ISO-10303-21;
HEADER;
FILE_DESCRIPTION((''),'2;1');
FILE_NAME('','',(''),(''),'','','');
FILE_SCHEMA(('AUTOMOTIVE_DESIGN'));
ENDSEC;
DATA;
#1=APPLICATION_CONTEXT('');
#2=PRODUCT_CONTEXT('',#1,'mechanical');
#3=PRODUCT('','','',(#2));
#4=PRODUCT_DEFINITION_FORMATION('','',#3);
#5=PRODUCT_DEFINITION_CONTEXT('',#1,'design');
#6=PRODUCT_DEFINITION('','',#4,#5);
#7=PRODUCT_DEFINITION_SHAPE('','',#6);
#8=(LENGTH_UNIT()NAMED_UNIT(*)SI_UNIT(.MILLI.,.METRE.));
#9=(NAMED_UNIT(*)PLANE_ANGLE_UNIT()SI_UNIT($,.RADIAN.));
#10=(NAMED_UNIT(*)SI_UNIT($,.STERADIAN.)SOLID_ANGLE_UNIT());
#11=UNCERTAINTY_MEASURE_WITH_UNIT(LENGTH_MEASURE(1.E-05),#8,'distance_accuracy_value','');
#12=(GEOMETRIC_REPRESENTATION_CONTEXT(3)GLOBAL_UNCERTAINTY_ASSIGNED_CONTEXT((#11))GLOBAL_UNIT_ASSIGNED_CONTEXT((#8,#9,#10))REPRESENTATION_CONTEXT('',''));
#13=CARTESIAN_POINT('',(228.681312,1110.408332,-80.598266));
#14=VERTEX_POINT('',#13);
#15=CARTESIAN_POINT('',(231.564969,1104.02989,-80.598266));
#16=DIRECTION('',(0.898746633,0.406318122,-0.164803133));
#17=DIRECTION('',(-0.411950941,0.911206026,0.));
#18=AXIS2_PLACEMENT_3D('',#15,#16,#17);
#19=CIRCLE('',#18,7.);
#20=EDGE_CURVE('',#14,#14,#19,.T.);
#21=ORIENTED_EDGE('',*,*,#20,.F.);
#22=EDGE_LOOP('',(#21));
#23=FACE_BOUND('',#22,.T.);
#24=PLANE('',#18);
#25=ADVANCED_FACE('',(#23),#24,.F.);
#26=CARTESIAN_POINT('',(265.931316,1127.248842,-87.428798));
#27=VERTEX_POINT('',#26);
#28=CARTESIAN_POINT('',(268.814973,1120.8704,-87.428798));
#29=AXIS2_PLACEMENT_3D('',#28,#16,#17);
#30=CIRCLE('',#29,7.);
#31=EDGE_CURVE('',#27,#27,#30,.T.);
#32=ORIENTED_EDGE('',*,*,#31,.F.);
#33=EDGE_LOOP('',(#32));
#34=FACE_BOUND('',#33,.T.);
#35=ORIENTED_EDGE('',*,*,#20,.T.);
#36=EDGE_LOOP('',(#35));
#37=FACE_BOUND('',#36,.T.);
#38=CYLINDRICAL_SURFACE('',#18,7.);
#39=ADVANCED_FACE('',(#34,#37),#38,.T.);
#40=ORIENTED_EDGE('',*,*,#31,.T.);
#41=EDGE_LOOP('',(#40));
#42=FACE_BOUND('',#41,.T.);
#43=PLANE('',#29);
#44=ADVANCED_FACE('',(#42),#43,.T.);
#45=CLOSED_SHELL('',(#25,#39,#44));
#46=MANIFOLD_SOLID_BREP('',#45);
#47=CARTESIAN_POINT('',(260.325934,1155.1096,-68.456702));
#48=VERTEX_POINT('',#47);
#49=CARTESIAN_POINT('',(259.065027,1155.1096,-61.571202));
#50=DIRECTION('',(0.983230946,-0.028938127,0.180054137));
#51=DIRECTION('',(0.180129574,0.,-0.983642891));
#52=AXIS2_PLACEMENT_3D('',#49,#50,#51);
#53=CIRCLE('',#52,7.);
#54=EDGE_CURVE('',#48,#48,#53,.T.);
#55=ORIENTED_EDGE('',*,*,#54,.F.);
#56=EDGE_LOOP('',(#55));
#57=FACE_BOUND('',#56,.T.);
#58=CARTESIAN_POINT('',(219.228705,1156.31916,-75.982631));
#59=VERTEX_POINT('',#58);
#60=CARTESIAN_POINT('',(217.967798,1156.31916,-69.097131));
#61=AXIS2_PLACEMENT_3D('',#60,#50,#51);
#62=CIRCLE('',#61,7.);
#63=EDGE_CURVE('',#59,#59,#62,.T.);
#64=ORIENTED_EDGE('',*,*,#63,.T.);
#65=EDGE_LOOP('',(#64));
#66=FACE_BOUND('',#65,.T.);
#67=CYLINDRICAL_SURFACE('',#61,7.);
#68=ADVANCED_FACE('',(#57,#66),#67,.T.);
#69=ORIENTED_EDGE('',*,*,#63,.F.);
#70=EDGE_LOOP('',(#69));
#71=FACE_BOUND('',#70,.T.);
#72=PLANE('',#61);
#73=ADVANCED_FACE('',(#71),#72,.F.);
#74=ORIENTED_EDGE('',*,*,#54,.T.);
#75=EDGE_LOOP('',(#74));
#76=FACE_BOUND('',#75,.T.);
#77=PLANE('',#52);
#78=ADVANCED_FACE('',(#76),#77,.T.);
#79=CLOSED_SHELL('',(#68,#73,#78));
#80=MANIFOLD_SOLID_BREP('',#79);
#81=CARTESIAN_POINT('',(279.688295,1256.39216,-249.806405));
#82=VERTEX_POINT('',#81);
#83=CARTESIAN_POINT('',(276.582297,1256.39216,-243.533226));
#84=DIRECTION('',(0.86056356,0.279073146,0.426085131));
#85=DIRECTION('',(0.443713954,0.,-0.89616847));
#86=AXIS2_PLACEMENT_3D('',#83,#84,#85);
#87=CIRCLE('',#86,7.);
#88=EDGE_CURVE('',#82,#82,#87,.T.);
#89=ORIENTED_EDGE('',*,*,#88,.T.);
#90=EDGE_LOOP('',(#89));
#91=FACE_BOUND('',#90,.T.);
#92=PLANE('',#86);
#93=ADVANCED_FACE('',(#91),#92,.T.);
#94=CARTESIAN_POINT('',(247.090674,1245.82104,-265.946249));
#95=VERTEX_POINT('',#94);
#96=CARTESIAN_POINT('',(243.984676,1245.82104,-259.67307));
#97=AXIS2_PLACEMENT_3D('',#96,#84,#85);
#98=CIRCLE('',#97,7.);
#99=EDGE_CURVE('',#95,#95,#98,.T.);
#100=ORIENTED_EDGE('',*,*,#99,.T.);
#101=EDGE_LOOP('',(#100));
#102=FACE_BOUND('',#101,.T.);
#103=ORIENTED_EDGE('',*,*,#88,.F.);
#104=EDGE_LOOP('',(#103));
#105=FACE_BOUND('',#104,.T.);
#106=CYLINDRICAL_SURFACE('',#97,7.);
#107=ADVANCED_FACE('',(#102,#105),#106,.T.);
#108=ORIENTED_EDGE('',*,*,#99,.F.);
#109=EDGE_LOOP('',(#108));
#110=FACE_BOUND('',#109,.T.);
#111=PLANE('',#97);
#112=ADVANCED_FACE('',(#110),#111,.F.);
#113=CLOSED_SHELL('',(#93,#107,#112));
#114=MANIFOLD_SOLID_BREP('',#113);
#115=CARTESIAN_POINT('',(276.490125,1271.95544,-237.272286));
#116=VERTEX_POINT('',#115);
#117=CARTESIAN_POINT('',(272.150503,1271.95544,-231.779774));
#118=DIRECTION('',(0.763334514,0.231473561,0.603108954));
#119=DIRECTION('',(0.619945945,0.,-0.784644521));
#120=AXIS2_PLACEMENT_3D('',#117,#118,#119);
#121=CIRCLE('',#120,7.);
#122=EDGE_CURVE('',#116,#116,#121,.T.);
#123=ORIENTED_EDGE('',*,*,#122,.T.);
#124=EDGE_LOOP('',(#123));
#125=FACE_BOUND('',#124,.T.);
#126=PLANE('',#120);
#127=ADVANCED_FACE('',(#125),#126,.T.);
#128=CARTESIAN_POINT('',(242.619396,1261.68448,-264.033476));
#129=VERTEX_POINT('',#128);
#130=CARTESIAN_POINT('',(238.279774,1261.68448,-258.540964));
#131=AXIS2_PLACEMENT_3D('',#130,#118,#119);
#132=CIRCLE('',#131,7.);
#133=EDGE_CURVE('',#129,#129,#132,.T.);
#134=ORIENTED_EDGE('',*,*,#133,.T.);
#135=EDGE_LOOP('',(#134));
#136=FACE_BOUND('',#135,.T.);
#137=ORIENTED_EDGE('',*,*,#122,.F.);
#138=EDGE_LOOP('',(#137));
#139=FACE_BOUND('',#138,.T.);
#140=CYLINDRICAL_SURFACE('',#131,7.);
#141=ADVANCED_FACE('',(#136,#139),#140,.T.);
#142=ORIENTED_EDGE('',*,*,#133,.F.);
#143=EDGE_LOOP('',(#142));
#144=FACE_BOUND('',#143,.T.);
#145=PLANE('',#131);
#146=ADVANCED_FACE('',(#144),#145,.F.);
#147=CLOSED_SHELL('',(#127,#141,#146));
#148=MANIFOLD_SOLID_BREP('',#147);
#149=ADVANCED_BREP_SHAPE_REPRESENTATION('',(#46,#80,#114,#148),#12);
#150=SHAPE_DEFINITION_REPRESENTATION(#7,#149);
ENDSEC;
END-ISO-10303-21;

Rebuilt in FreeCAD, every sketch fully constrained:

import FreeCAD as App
import Part
import Sketcher

doc = App.newDocument("Part")
body = doc.addObject("PartDesign::Body", "Body")

sketch1 = doc.addObject("Sketcher::SketchObject", "Sketch")
body.addObject(sketch1)
sketch1.Placement = App.Placement(App.Vector(217.967798, 1156.31916, -69.097131), App.Rotation(App.Vector(-0.180129574, 0, 0.983642891), App.Vector(-0.028464783, -0.999581205, -0.005212612), App.Vector(0.983230946, -0.028938127, 0.180054137), "ZXY"))
sketch1.addGeometry(Part.Circle(App.Vector(0, 0, 0), App.Vector(0, 0, 1), 7), False)
sketch1.addConstraint([
    Sketcher.Constraint("Coincident", 0, 3, -1, 1),
    Sketcher.Constraint("Diameter", 0, 14.0),
])

sketch2 = doc.addObject("Sketcher::SketchObject", "Sketch001")
body.addObject(sketch2)
sketch2.Placement = App.Placement(App.Vector(19.315177, 0, -105.475386), App.Rotation(App.Vector(0.983642891, 0, 0.180129574), App.Vector(0, 1, 0), App.Vector(-0.180129574, 0, 0.983642891), "ZXY"))
sketch2.addGeometry(Part.LineSegment(App.Vector(202, 1156, 0), App.Vector(244, 1155, 0)), False)
sketch2.addConstraint([
    Sketcher.Constraint("DistanceY", -1, 1, 0, 2, 1155.109601),
    Sketcher.Constraint("DistanceX", -1, 1, 0, 1, 201.956038),
    Sketcher.Constraint("DistanceY", -1, 1, 0, 1, 1156.319161),
    Sketcher.Constraint("DistanceX", 0, 1, 0, 2, 41.78064),
])
doc.recompute()

additivepipe = doc.addObject("PartDesign::AdditivePipe", "AdditivePipe")
body.addObject(additivepipe)
additivepipe.Profile = sketch1
additivepipe.Spine = (sketch2, ["Edge1"])
body2 = doc.addObject("PartDesign::Body", "Body001")

sketch3 = doc.addObject("Sketcher::SketchObject", "Sketch002")
body2.addObject(sketch3)
sketch3.Placement = App.Placement(App.Vector(231.564969, 1104.02989, -80.598266), App.Rotation(App.Vector(-0.411950941, 0.911206026, 0), App.Vector(0.150169608, 0.067890806, 0.986326481), App.Vector(0.898746633, 0.406318122, -0.164803133), "ZXY"))
sketch3.addGeometry(Part.Circle(App.Vector(0, 0, 0), App.Vector(0, 0, 1), 7), False)
sketch3.addConstraint([
    Sketcher.Constraint("Coincident", 0, 3, -1, 1),
    Sketcher.Constraint("Diameter", 0, 14.0),
])

sketch4 = doc.addObject("Sketcher::SketchObject", "Sketch003")
body2.addObject(sketch4)
sketch4.Placement = App.Placement(App.Vector(-375.124703, 829.749021, 0), App.Rotation(App.Vector(0.911206026, 0.411950941, 0), App.Vector(0, 0, 1), App.Vector(0.411950941, -0.911206026, 0), "ZXY"))
sketch4.addGeometry(Part.LineSegment(App.Vector(666, -81, 0), App.Vector(707, -87, 0)), False)
sketch4.addConstraint([
    Sketcher.Constraint("DistanceY", 0, 2, -1, 1, 87.428798),
    Sketcher.Constraint("DistanceX", -1, 1, 0, 2, 706.689439),
    Sketcher.Constraint("DistanceY", 0, 2, 0, 1, 6.830532),
    Sketcher.Constraint("Distance", 0, 41.446613),
])
doc.recompute()

additivepipe2 = doc.addObject("PartDesign::AdditivePipe", "AdditivePipe001")
body2.addObject(additivepipe2)
additivepipe2.Profile = sketch3
additivepipe2.Spine = (sketch4, ["Edge1"])
body3 = doc.addObject("PartDesign::Body", "Body002")

sketch5 = doc.addObject("Sketcher::SketchObject", "Sketch004")
body3.addObject(sketch5)
sketch5.Placement = App.Placement(App.Vector(238.279774, 1261.68448, -258.540964), App.Rotation(App.Vector(-0.619945945, 0, 0.784644521), App.Vector(0.181624461, -0.972841195, 0.143501096), App.Vector(0.763334514, 0.231473561, 0.603108954), "ZXY"))
sketch5.addGeometry(Part.Circle(App.Vector(0, 0, 0), App.Vector(0, 0, 1), 7), False)
sketch5.addConstraint([
    Sketcher.Constraint("Coincident", 0, 3, -1, 1),
    Sketcher.Constraint("Diameter", 0, 14.0),
])

sketch6 = doc.addObject("Sketcher::SketchObject", "Sketch005")
body3.addObject(sketch6)
sketch6.Placement = App.Placement(App.Vector(217.342714, 0, -275.08329), App.Rotation(App.Vector(0.784644521, 0, 0.619945945), App.Vector(0, 0.999999999, 0), App.Vector(-0.619945945, 0, 0.784644521), "ZXY"))
sketch6.addGeometry(Part.LineSegment(App.Vector(27, 1262, 0), App.Vector(70, 1272, 0)), False)
sketch6.addConstraint([
    Sketcher.Constraint("DistanceX", -1, 1, 0, 2, 69.85047),
    Sketcher.Constraint("DistanceY", 0, 1, 0, 2, 10.27096),
    Sketcher.Constraint("Distance", 0, 44.372065),
    Sketcher.Constraint("DistanceY", -1, 1, 0, 1, 1261.684478),
])
doc.recompute()

additivepipe3 = doc.addObject("PartDesign::AdditivePipe", "AdditivePipe002")
body3.addObject(additivepipe3)
additivepipe3.Profile = sketch5
additivepipe3.Spine = (sketch6, ["Edge1"])
body4 = doc.addObject("PartDesign::Body", "Body003")

sketch7 = doc.addObject("Sketcher::SketchObject", "Sketch006")
body4.addObject(sketch7)
sketch7.Placement = App.Placement(App.Vector(243.984676, 1245.82104, -259.67307), App.Rotation(App.Vector(-0.443713954, 0, 0.89616847), App.Vector(0.250096554, -0.960269847, 0.123828649), App.Vector(0.86056356, 0.279073146, 0.426085131), "ZXY"))
sketch7.addGeometry(Part.Circle(App.Vector(0, 0, 0), App.Vector(0, 0, 1), 7), False)
sketch7.addConstraint([
    Sketcher.Constraint("Coincident", 0, 3, -1, 1),
    Sketcher.Constraint("Diameter", 0, 14.0),
])

sketch8 = doc.addObject("Sketcher::SketchObject", "Sketch007")
body4.addObject(sketch8)
sketch8.Placement = App.Placement(App.Vector(151.293246, 0, -305.566763), App.Rotation(App.Vector(0.89616847, 0, 0.443713954), App.Vector(0, 1, 0), App.Vector(-0.443713954, 0, 0.89616847), "ZXY"))
sketch8.addGeometry(Part.LineSegment(App.Vector(103, 1246, 0), App.Vector(140, 1256, 0)), False)
sketch8.addConstraint([
    Sketcher.Constraint("Distance", 0, 37.879388),
    Sketcher.Constraint("DistanceX", -1, 1, 0, 1, 103.430809),
    Sketcher.Constraint("DistanceY", -1, 1, 0, 1, 1245.821039),
    Sketcher.Constraint("DistanceY", -1, 1, 0, 2, 1256.392159),
])
doc.recompute()

additivepipe4 = doc.addObject("PartDesign::AdditivePipe", "AdditivePipe003")
body4.addObject(additivepipe4)
additivepipe4.Profile = sketch7
additivepipe4.Spine = (sketch8, ["Edge1"])

doc.recompute()
